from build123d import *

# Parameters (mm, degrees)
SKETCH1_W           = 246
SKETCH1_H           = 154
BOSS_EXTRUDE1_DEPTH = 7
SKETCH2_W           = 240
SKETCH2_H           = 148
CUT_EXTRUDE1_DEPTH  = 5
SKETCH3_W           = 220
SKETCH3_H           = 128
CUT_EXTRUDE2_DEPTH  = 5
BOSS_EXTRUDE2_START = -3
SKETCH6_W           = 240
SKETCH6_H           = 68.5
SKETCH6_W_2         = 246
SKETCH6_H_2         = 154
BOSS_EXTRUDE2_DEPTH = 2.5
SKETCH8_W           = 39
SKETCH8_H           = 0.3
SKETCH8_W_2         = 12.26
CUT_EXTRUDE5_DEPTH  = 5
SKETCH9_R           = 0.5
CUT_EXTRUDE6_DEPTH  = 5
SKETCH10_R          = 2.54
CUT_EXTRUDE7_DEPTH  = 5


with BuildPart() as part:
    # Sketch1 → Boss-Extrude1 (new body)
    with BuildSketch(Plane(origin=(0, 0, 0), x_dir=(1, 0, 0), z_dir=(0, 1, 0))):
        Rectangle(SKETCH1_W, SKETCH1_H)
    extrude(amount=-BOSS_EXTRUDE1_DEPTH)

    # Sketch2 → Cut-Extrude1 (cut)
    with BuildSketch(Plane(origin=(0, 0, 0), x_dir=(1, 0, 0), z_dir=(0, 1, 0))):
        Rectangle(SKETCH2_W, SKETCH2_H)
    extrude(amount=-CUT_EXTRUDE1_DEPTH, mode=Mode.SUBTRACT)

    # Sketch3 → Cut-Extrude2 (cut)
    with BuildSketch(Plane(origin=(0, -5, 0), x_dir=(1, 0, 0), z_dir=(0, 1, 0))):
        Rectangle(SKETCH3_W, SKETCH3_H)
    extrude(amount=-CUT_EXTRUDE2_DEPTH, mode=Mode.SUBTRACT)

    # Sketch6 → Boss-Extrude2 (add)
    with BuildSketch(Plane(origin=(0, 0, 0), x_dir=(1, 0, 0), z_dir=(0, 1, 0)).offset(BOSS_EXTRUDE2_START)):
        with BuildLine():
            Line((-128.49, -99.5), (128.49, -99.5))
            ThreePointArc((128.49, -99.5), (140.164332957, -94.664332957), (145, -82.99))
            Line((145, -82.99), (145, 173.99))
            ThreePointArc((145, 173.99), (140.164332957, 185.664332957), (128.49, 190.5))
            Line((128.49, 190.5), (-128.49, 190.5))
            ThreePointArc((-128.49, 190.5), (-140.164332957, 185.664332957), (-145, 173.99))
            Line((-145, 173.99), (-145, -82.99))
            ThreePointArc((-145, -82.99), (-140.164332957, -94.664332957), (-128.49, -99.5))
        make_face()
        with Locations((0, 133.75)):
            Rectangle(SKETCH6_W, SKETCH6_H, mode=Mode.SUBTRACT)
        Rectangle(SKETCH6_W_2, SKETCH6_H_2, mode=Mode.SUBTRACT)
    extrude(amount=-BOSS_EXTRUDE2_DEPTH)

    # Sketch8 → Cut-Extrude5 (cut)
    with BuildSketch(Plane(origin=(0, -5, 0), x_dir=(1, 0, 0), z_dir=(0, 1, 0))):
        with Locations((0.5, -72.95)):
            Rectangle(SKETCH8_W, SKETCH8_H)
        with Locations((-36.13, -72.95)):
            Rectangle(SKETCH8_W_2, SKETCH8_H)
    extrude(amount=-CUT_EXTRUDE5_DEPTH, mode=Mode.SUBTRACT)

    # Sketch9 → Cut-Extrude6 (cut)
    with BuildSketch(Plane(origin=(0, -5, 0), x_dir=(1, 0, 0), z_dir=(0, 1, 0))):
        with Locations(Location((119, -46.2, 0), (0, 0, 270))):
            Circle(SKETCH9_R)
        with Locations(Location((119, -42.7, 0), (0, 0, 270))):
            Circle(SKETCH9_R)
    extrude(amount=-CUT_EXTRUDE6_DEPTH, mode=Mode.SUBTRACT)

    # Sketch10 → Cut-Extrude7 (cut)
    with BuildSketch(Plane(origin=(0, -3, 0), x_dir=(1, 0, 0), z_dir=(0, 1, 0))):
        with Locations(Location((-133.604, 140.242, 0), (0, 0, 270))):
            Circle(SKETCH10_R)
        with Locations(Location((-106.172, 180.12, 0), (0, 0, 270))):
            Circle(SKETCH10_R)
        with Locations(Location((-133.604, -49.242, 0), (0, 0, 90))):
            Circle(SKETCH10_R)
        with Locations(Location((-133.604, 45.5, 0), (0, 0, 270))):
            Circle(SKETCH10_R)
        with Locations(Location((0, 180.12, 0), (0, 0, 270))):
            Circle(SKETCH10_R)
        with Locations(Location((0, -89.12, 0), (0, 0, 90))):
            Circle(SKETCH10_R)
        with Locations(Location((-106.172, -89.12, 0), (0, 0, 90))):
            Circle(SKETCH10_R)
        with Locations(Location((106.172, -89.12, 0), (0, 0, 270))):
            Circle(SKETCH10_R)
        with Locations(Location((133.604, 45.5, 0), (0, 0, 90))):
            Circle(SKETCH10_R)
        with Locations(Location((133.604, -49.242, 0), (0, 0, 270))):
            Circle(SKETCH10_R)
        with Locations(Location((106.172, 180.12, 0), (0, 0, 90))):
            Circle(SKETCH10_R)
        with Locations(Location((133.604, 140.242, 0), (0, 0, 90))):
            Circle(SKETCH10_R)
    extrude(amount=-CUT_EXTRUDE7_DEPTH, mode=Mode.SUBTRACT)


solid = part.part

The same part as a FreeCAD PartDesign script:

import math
import FreeCAD as App
import Part
import Sketcher
Q = App.Units.Quantity

doc = App.newDocument("Part")
body = doc.addObject("PartDesign::Body", "Body")

# Sketch on XZ plane
sketch1 = body.newObject("Sketcher::SketchObject", "Sketch")
sketch1.AttachmentSupport = (doc.getObject("XZ_Plane"), [""])
sketch1.MapMode = "FlatFace"
sketch1.addGeometry(Part.LineSegment(App.Vector(-123, -77, 0), App.Vector(-123, 77, 0)), False)
sketch1.addGeometry(Part.LineSegment(App.Vector(-123, 77, 0), App.Vector(123, 77, 0)), False)
sketch1.addGeometry(Part.LineSegment(App.Vector(123, 77, 0), App.Vector(123, -77, 0)), False)
sketch1.addGeometry(Part.LineSegment(App.Vector(123, -77, 0), App.Vector(-123, -77, 0)), False)
sketch1.addConstraint(Sketcher.Constraint("Coincident", 0, 2, 1, 1))
sketch1.addConstraint(Sketcher.Constraint("Coincident", 1, 2, 2, 1))
sketch1.addConstraint(Sketcher.Constraint("Coincident", 2, 2, 3, 1))
sketch1.addConstraint(Sketcher.Constraint("Coincident", 3, 2, 0, 1))
sketch1.addConstraint(Sketcher.Constraint("Vertical", 0))
sketch1.addConstraint(Sketcher.Constraint("Horizontal", 1))
sketch1.addConstraint(Sketcher.Constraint("Vertical", 2))
sketch1.addConstraint(Sketcher.Constraint("Horizontal", 3))
sketch1.addConstraint(Sketcher.Constraint("Symmetric", 0, 2, 2, 2, -1, 1))
sketch1.addConstraint(Sketcher.Constraint("DistanceX", 1, 1, 1, 2, Q("246 mm")))
sketch1.addConstraint(Sketcher.Constraint("DistanceY", 0, 1, 0, 2, Q("154 mm")))
pad1 = body.newObject("PartDesign::Pad", "Pad")
pad1.Profile = sketch1
pad1.Length = 7

# Sketch on XZ plane
sketch2 = body.newObject("Sketcher::SketchObject", "Sketch001")
sketch2.AttachmentSupport = (doc.getObject("XZ_Plane"), [""])
sketch2.MapMode = "FlatFace"
sketch2.addGeometry(Part.LineSegment(App.Vector(-120, -74, 0), App.Vector(-120, 74, 0)), False)
sketch2.addGeometry(Part.LineSegment(App.Vector(-120, 74, 0), App.Vector(120, 74, 0)), False)
sketch2.addGeometry(Part.LineSegment(App.Vector(120, 74, 0), App.Vector(120, -74, 0)), False)
sketch2.addGeometry(Part.LineSegment(App.Vector(120, -74, 0), App.Vector(-120, -74, 0)), False)
sketch2.addConstraint(Sketcher.Constraint("Coincident", 0, 2, 1, 1))
sketch2.addConstraint(Sketcher.Constraint("Coincident", 1, 2, 2, 1))
sketch2.addConstraint(Sketcher.Constraint("Coincident", 2, 2, 3, 1))
sketch2.addConstraint(Sketcher.Constraint("Coincident", 3, 2, 0, 1))
sketch2.addConstraint(Sketcher.Constraint("Vertical", 0))
sketch2.addConstraint(Sketcher.Constraint("Horizontal", 1))
sketch2.addConstraint(Sketcher.Constraint("Vertical", 2))
sketch2.addConstraint(Sketcher.Constraint("Horizontal", 3))
sketch2.addConstraint(Sketcher.Constraint("Symmetric", 0, 2, 2, 2, -1, 1))
sketch2.addConstraint(Sketcher.Constraint("DistanceX", 1, 1, 1, 2, Q("240 mm")))
sketch2.addConstraint(Sketcher.Constraint("DistanceY", 0, 1, 0, 2, Q("148 mm")))
pocket1 = body.newObject("PartDesign::Pocket", "Pocket")
pocket1.Profile = sketch2
pocket1.Length = 5
pocket1.Reversed = True

# Sketch on XZ plane
sketch3 = body.newObject("Sketcher::SketchObject", "Sketch002")
sketch3.AttachmentSupport = (doc.getObject("XZ_Plane"), [""])
sketch3.MapMode = "FlatFace"
sketch3.AttachmentOffset = App.Placement(App.Vector(0, 0, 5), App.Rotation())
sketch3.addGeometry(Part.LineSegment(App.Vector(-110, -64, 0), App.Vector(-110, 64, 0)), False)
sketch3.addGeometry(Part.LineSegment(App.Vector(-110, 64, 0), App.Vector(110, 64, 0)), False)
sketch3.addGeometry(Part.LineSegment(App.Vector(110, 64, 0), App.Vector(110, -64, 0)), False)
sketch3.addGeometry(Part.LineSegment(App.Vector(110, -64, 0), App.Vector(-110, -64, 0)), False)
sketch3.addConstraint(Sketcher.Constraint("Coincident", 0, 2, 1, 1))
sketch3.addConstraint(Sketcher.Constraint("Coincident", 1, 2, 2, 1))
sketch3.addConstraint(Sketcher.Constraint("Coincident", 2, 2, 3, 1))
sketch3.addConstraint(Sketcher.Constraint("Coincident", 3, 2, 0, 1))
sketch3.addConstraint(Sketcher.Constraint("Vertical", 0))
sketch3.addConstraint(Sketcher.Constraint("Horizontal", 1))
sketch3.addConstraint(Sketcher.Constraint("Vertical", 2))
sketch3.addConstraint(Sketcher.Constraint("Horizontal", 3))
sketch3.addConstraint(Sketcher.Constraint("Symmetric", 0, 2, 2, 2, -1, 1))
sketch3.addConstraint(Sketcher.Constraint("DistanceX", 1, 1, 1, 2, Q("220 mm")))
sketch3.addConstraint(Sketcher.Constraint("DistanceY", 0, 1, 0, 2, Q("128 mm")))
pocket2 = body.newObject("PartDesign::Pocket", "Pocket001")
pocket2.Profile = sketch3
pocket2.Length = 5
pocket2.Reversed = True

# Sketch on XZ plane
sketch4 = body.newObject("Sketcher::SketchObject", "Sketch003")
sketch4.AttachmentSupport = (doc.getObject("XZ_Plane"), [""])
sketch4.MapMode = "FlatFace"
sketch4.AttachmentOffset = App.Placement(App.Vector(0, 0, 3), App.Rotation())
sketch4.addGeometry(Part.LineSegment(App.Vector(-128, 100, 0), App.Vector(128, 100, 0)), False)
sketch4.addGeometry(Part.ArcOfCircle(Part.Circle(App.Vector(128, 83, 0), App.Vector(0, 0, 1), 17), math.radians(0), math.radians(90)), False)
sketch4.addGeometry(Part.LineSegment(App.Vector(145, 83, 0), App.Vector(145, -174, 0)), False)
sketch4.addGeometry(Part.ArcOfCircle(Part.Circle(App.Vector(128, -174, 0), App.Vector(0, 0, 1), 17), math.radians(-90), math.radians(0)), False)
sketch4.addGeometry(Part.LineSegment(App.Vector(128, -190, 0), App.Vector(-128, -190, 0)), False)
sketch4.addGeometry(Part.ArcOfCircle(Part.Circle(App.Vector(-128, -174, 0), App.Vector(0, 0, 1), 17), math.radians(-180), math.radians(-90)), False)
sketch4.addGeometry(Part.LineSegment(App.Vector(-145, -174, 0), App.Vector(-145, 83, 0)), False)
sketch4.addGeometry(Part.ArcOfCircle(Part.Circle(App.Vector(-128, 83, 0), App.Vector(0, 0, 1), 17), math.radians(90), math.radians(180)), False)
sketch4.addGeometry(Part.LineSegment(App.Vector(123, 77, 0), App.Vector(-123, 77, 0)), False)
sketch4.addGeometry(Part.LineSegment(App.Vector(-123, 77, 0), App.Vector(-123, -77, 0)), False)
sketch4.addGeometry(Part.LineSegment(App.Vector(-123, -77, 0), App.Vector(123, -77, 0)), False)
sketch4.addGeometry(Part.LineSegment(App.Vector(123, -77, 0), App.Vector(123, 77, 0)), False)
sketch4.addGeometry(Part.LineSegment(App.Vector(120, -100, 0), App.Vector(-120, -100, 0)), False)
sketch4.addGeometry(Part.LineSegment(App.Vector(-120, -100, 0), App.Vector(-120, -168, 0)), False)
sketch4.addGeometry(Part.LineSegment(App.Vector(-120, -168, 0), App.Vector(120, -168, 0)), False)
sketch4.addGeometry(Part.LineSegment(App.Vector(120, -168, 0), App.Vector(120, -100, 0)), False)
sketch4.addConstraint(Sketcher.Constraint("Tangent", 0, 2, 1, 2))
sketch4.addConstraint(Sketcher.Constraint("Tangent", 1, 1, 2, 1))
sketch4.addConstraint(Sketcher.Constraint("Tangent", 2, 2, 3, 2))
sketch4.addConstraint(Sketcher.Constraint("Tangent", 3, 1, 4, 1))
sketch4.addConstraint(Sketcher.Constraint("Tangent", 4, 2, 5, 2))
sketch4.addConstraint(Sketcher.Constraint("Tangent", 5, 1, 6, 1))
sketch4.addConstraint(Sketcher.Constraint("Tangent", 6, 2, 7, 2))
sketch4.addConstraint(Sketcher.Constraint("Tangent", 7, 1, 0, 1))
sketch4.addConstraint(Sketcher.Constraint("Coincident", 8, 2, 9, 1))
sketch4.addConstraint(Sketcher.Constraint("Coincident", 9, 2, 10, 1))
sketch4.addConstraint(Sketcher.Constraint("Coincident", 10, 2, 11, 1))
sketch4.addConstraint(Sketcher.Constraint("Coincident", 11, 2, 8, 1))
sketch4.addConstraint(Sketcher.Constraint("Coincident", 12, 2, 13, 1))
sketch4.addConstraint(Sketcher.Constraint("Coincident", 13, 2, 14, 1))
sketch4.addConstraint(Sketcher.Constraint("Coincident", 14, 2, 15, 1))
sketch4.addConstraint(Sketcher.Constraint("Coincident", 15, 2, 12, 1))
sketch4.addConstraint(Sketcher.Constraint("Horizontal", 0))
sketch4.addConstraint(Sketcher.Constraint("Vertical", 2))
sketch4.addConstraint(Sketcher.Constraint("Horizontal", 4))
sketch4.addConstraint(Sketcher.Constraint("Vertical", 6))
sketch4.addConstraint(Sketcher.Constraint("Horizontal", 8))
sketch4.addConstraint(Sketcher.Constraint("Vertical", 9))
sketch4.addConstraint(Sketcher.Constraint("Horizontal", 10))
sketch4.addConstraint(Sketcher.Constraint("Vertical", 11))
sketch4.addConstraint(Sketcher.Constraint("Horizontal", 12))
sketch4.addConstraint(Sketcher.Constraint("Vertical", 13))
sketch4.addConstraint(Sketcher.Constraint("Horizontal", 14))
sketch4.addConstraint(Sketcher.Constraint("Vertical", 15))
sketch4.addConstraint(Sketcher.Constraint("Equal", 1, 3))
sketch4.addConstraint(Sketcher.Constraint("Equal", 3, 5))
sketch4.addConstraint(Sketcher.Constraint("Equal", 5, 7))
sketch4.addConstraint(Sketcher.Constraint("Symmetric", 8, 2, 10, 2, -1, 1))
sketch4.addConstraint(Sketcher.Constraint("Equal", 4, 2))
sketch4.addConstraint(Sketcher.Constraint("DistanceX", 8, 2, 8, 1, Q("246 mm")))
sketch4.addConstraint(Sketcher.Constraint("DistanceX", 12, 2, 12, 1, Q("240 mm")))
sketch4.addConstraint(Sketcher.Constraint("DistanceY", 9, 2, 9, 1, Q("154 mm")))
sketch4.addConstraint(Sketcher.Constraint("Radius", 1, Q("16.51 mm")))
sketch4.addConstraint(Sketcher.Constraint("DistanceY", 13, 2, 13, 1, Q("68.5 mm")))
sketch4.addConstraint(Sketcher.Constraint("DistanceX", -1, 1, 1, 1, Q("145 mm")))
sketch4.addConstraint(Sketcher.Constraint("DistanceX", 5, 1, -1, 1, Q("145 mm")))
sketch4.addConstraint(Sketcher.Constraint("DistanceX", 12, 2, -1, 1, Q("120 mm")))
sketch4.addConstraint(Sketcher.Constraint("DistanceY", 13, 2, -1, 1, Q("168 mm")))
sketch4.addConstraint(Sketcher.Constraint("DistanceY", 4, 2, 12, 2, Q("91 mm")))
pad2 = body.newObject("PartDesign::Pad", "Pad001")
pad2.Profile = sketch4
pad2.Length = 2.5

# Sketch on XZ plane
sketch5 = body.newObject("Sketcher::SketchObject", "Sketch004")
sketch5.AttachmentSupport = (doc.getObject("XZ_Plane"), [""])
sketch5.MapMode = "FlatFace"
sketch5.AttachmentOffset = App.Placement(App.Vector(0, 0, 5), App.Rotation())
sketch5.addGeometry(Part.LineSegment(App.Vector(-19, 72.8, 0), App.Vector(-19, 73.1, 0)), False)
sketch5.addGeometry(Part.LineSegment(App.Vector(-19, 73.1, 0), App.Vector(20, 73.1, 0)), False)
sketch5.addGeometry(Part.LineSegment(App.Vector(20, 73.1, 0), App.Vector(20, 72.8, 0)), False)
sketch5.addGeometry(Part.LineSegment(App.Vector(20, 72.8, 0), App.Vector(-19, 72.8, 0)), False)
sketch5.addGeometry(Part.LineSegment(App.Vector(-42.26, 72.8, 0), App.Vector(-42.26, 73.1, 0)), False)
sketch5.addGeometry(Part.LineSegment(App.Vector(-42.26, 73.1, 0), App.Vector(-30, 73.1, 0)), False)
sketch5.addGeometry(Part.LineSegment(App.Vector(-30, 73.1, 0), App.Vector(-30, 72.8, 0)), False)
sketch5.addGeometry(Part.LineSegment(App.Vector(-30, 72.8, 0), App.Vector(-42.26, 72.8, 0)), False)
sketch5.addConstraint(Sketcher.Constraint("Coincident", 0, 2, 1, 1))
sketch5.addConstraint(Sketcher.Constraint("Coincident", 1, 2, 2, 1))
sketch5.addConstraint(Sketcher.Constraint("Coincident", 2, 2, 3, 1))
sketch5.addConstraint(Sketcher.Constraint("Coincident", 3, 2, 0, 1))
sketch5.addConstraint(Sketcher.Constraint("Coincident", 4, 2, 5, 1))
sketch5.addConstraint(Sketcher.Constraint("Coincident", 5, 2, 6, 1))
sketch5.addConstraint(Sketcher.Constraint("Coincident", 6, 2, 7, 1))
sketch5.addConstraint(Sketcher.Constraint("Coincident", 7, 2, 4, 1))
sketch5.addConstraint(Sketcher.Constraint("Vertical", 0))
sketch5.addConstraint(Sketcher.Constraint("Horizontal", 1))
sketch5.addConstraint(Sketcher.Constraint("Vertical", 2))
sketch5.addConstraint(Sketcher.Constraint("Horizontal", 3))
sketch5.addConstraint(Sketcher.Constraint("Vertical", 4))
sketch5.addConstraint(Sketcher.Constraint("Horizontal", 5))
sketch5.addConstraint(Sketcher.Constraint("Vertical", 6))
sketch5.addConstraint(Sketcher.Constraint("Horizontal", 7))
sketch5.addConstraint(Sketcher.Constraint("Horizontal", 1, 2, 4, 2))
sketch5.addConstraint(Sketcher.Constraint("Horizontal", 3, 2, 6, 2))
sketch5.addConstraint(Sketcher.Constraint("DistanceX", 1, 1, 1, 2, Q("39 mm")))
sketch5.addConstraint(Sketcher.Constraint("DistanceY", 0, 1, 0, 2, Q("0.3 mm")))
sketch5.addConstraint(Sketcher.Constraint("DistanceX", 0, 2, -1, 1, Q("19 mm")))
sketch5.addConstraint(Sketcher.Constraint("DistanceX", 5, 2, -1, 1, Q("30 mm")))
sketch5.addConstraint(Sketcher.Constraint("DistanceX", 5, 1, 5, 2, Q("12.26 mm")))
sketch5.addConstraint(Sketcher.Constraint("DistanceY", -1, 1, 0, 2, Q("73.1 mm")))
pocket3 = body.newObject("PartDesign::Pocket", "Pocket002")
pocket3.Profile = sketch5
pocket3.Length = 5
pocket3.Reversed = True

# Sketch on XZ plane
sketch6 = body.newObject("Sketcher::SketchObject", "Sketch005")
sketch6.AttachmentSupport = (doc.getObject("XZ_Plane"), [""])
sketch6.MapMode = "FlatFace"
sketch6.AttachmentOffset = App.Placement(App.Vector(0, 0, 5), App.Rotation())
sketch6.addGeometry(Part.Circle(App.Vector(119, 46.2, 0), App.Vector(0, 0, 1), 0.5), False)
sketch6.addGeometry(Part.Circle(App.Vector(119, 42.7, 0), App.Vector(0, 0, 1), 0.5), False)
sketch6.addConstraint(Sketcher.Constraint("Equal", 0, 1))
sketch6.addConstraint(Sketcher.Constraint("Vertical", 0, 3, 1, 3))
sketch6.addConstraint(Sketcher.Constraint("Diameter", 0, Q("1 mm")))
sketch6.addConstraint(Sketcher.Constraint("DistanceX", -1, 1, 0, 3, Q("119 mm")))
sketch6.addConstraint(Sketcher.Constraint("DistanceY", -1, 1, 0, 3, Q("46.2 mm")))
sketch6.addConstraint(Sketcher.Constraint("DistanceY", -1, 1, 1, 3, Q("42.7 mm")))
pocket4 = body.newObject("PartDesign::Pocket", "Pocket003")
pocket4.Profile = sketch6
pocket4.Length = 5
pocket4.Reversed = True

# Sketch on XZ plane
sketch7 = body.newObject("Sketcher::SketchObject", "Sketch006")
sketch7.AttachmentSupport = (doc.getObject("XZ_Plane"), [""])
sketch7.MapMode = "FlatFace"
sketch7.AttachmentOffset = App.Placement(App.Vector(0, 0, 3), App.Rotation())
sketch7.addGeometry(Part.Circle(App.Vector(-133.6, -140.2, 0), App.Vector(0, 0, 1), 2.5), False)
sketch7.addGeometry(Part.Circle(App.Vector(-106.2, -180.1, 0), App.Vector(0, 0, 1), 2.5), False)
sketch7.addGeometry(Part.Circle(App.Vector(-133.6, 49.2, 0), App.Vector(0, 0, 1), 2.5), False)
sketch7.addGeometry(Part.Circle(App.Vector(-133.6, -45.5, 0), App.Vector(0, 0, 1), 2.5), False)
sketch7.addGeometry(Part.Circle(App.Vector(0, -180.1, 0), App.Vector(0, 0, 1), 2.5), False)
sketch7.addGeometry(Part.Circle(App.Vector(0, 89.1, 0), App.Vector(0, 0, 1), 2.5), False)
sketch7.addGeometry(Part.Circle(App.Vector(-106.2, 89.1, 0), App.Vector(0, 0, 1), 2.5), False)
sketch7.addGeometry(Part.Circle(App.Vector(106.2, 89.1, 0), App.Vector(0, 0, 1), 2.5), False)
sketch7.addGeometry(Part.Circle(App.Vector(133.6, -45.5, 0), App.Vector(0, 0, 1), 2.5), False)
sketch7.addGeometry(Part.Circle(App.Vector(133.6, 49.2, 0), App.Vector(0, 0, 1), 2.5), False)
sketch7.addGeometry(Part.Circle(App.Vector(106.2, -180.1, 0), App.Vector(0, 0, 1), 2.5), False)
sketch7.addGeometry(Part.Circle(App.Vector(133.6, -140.2, 0), App.Vector(0, 0, 1), 2.5), False)
sketch7.addConstraint(Sketcher.Constraint("Equal", 0, 1))
sketch7.addConstraint(Sketcher.Constraint("Equal", 1, 2))
sketch7.addConstraint(Sketcher.Constraint("Equal", 2, 3))
sketch7.addConstraint(Sketcher.Constraint("Equal", 3, 4))
sketch7.addConstraint(Sketcher.Constraint("Equal", 4, 5))
sketch7.addConstraint(Sketcher.Constraint("Equal", 5, 6))
sketch7.addConstraint(Sketcher.Constraint("Equal", 6, 7))
sketch7.addConstraint(Sketcher.Constraint("Equal", 7, 8))
sketch7.addConstraint(Sketcher.Constraint("Equal", 8, 9))
sketch7.addConstraint(Sketcher.Constraint("Equal", 9, 10))
sketch7.addConstraint(Sketcher.Constraint("Equal", 10, 11))
sketch7.addConstraint(Sketcher.Constraint("Symmetric", 6, 3, 7, 3, -2))
sketch7.addConstraint(Sketcher.Constraint("Symmetric", 3, 3, 8, 3, -2))
sketch7.addConstraint(Sketcher.Constraint("Symmetric", 2, 3, 9, 3, -2))
sketch7.addConstraint(Sketcher.Constraint("Symmetric", 1, 3, 10, 3, -2))
sketch7.addConstraint(Sketcher.Constraint("Symmetric", 0, 3, 11, 3, -2))
sketch7.addConstraint(Sketcher.Constraint("PointOnObject", 4, 3, -2))
sketch7.addConstraint(Sketcher.Constraint("PointOnObject", 5, 3, -2))
sketch7.addConstraint(Sketcher.Constraint("Horizontal", 1, 3, 4, 3))
sketch7.addConstraint(Sketcher.Constraint("Horizontal", 5, 3, 6, 3))
sketch7.addConstraint(Sketcher.Constraint("Vertical", 0, 3, 2, 3))
sketch7.addConstraint(Sketcher.Constraint("Vertical", 2, 3, 3, 3))
sketch7.addConstraint(Sketcher.Constraint("Vertical", 1, 3, 6, 3))
sketch7.addConstraint(Sketcher.Constraint("Diameter", 0, Q("5.08 mm")))
sketch7.addConstraint(Sketcher.Constraint("DistanceY", 3, 3, -1, 1, Q("45.5 mm")))
sketch7.addConstraint(Sketcher.Constraint("DistanceY", 1, 3, -1, 1, Q("180.12 mm")))
sketch7.addConstraint(Sketcher.Constraint("DistanceY", -1, 1, 5, 3, Q("89.12 mm")))
sketch7.addConstraint(Sketcher.Constraint("DistanceX", 0, 3, -1, 1, Q("133.604 mm")))
sketch7.addConstraint(Sketcher.Constraint("DistanceY", 0, 3, -1, 1, Q("140.242 mm")))
sketch7.addConstraint(Sketcher.Constraint("DistanceX", 1, 3, -1, 1, Q("106.172 mm")))
sketch7.addConstraint(Sketcher.Constraint("DistanceY", -1, 1, 2, 3, Q("49.242 mm")))
pocket5 = body.newObject("PartDesign::Pocket", "Pocket004")
pocket5.Profile = sketch7
pocket5.Length = 5
pocket5.Reversed = True

doc.recompute()
